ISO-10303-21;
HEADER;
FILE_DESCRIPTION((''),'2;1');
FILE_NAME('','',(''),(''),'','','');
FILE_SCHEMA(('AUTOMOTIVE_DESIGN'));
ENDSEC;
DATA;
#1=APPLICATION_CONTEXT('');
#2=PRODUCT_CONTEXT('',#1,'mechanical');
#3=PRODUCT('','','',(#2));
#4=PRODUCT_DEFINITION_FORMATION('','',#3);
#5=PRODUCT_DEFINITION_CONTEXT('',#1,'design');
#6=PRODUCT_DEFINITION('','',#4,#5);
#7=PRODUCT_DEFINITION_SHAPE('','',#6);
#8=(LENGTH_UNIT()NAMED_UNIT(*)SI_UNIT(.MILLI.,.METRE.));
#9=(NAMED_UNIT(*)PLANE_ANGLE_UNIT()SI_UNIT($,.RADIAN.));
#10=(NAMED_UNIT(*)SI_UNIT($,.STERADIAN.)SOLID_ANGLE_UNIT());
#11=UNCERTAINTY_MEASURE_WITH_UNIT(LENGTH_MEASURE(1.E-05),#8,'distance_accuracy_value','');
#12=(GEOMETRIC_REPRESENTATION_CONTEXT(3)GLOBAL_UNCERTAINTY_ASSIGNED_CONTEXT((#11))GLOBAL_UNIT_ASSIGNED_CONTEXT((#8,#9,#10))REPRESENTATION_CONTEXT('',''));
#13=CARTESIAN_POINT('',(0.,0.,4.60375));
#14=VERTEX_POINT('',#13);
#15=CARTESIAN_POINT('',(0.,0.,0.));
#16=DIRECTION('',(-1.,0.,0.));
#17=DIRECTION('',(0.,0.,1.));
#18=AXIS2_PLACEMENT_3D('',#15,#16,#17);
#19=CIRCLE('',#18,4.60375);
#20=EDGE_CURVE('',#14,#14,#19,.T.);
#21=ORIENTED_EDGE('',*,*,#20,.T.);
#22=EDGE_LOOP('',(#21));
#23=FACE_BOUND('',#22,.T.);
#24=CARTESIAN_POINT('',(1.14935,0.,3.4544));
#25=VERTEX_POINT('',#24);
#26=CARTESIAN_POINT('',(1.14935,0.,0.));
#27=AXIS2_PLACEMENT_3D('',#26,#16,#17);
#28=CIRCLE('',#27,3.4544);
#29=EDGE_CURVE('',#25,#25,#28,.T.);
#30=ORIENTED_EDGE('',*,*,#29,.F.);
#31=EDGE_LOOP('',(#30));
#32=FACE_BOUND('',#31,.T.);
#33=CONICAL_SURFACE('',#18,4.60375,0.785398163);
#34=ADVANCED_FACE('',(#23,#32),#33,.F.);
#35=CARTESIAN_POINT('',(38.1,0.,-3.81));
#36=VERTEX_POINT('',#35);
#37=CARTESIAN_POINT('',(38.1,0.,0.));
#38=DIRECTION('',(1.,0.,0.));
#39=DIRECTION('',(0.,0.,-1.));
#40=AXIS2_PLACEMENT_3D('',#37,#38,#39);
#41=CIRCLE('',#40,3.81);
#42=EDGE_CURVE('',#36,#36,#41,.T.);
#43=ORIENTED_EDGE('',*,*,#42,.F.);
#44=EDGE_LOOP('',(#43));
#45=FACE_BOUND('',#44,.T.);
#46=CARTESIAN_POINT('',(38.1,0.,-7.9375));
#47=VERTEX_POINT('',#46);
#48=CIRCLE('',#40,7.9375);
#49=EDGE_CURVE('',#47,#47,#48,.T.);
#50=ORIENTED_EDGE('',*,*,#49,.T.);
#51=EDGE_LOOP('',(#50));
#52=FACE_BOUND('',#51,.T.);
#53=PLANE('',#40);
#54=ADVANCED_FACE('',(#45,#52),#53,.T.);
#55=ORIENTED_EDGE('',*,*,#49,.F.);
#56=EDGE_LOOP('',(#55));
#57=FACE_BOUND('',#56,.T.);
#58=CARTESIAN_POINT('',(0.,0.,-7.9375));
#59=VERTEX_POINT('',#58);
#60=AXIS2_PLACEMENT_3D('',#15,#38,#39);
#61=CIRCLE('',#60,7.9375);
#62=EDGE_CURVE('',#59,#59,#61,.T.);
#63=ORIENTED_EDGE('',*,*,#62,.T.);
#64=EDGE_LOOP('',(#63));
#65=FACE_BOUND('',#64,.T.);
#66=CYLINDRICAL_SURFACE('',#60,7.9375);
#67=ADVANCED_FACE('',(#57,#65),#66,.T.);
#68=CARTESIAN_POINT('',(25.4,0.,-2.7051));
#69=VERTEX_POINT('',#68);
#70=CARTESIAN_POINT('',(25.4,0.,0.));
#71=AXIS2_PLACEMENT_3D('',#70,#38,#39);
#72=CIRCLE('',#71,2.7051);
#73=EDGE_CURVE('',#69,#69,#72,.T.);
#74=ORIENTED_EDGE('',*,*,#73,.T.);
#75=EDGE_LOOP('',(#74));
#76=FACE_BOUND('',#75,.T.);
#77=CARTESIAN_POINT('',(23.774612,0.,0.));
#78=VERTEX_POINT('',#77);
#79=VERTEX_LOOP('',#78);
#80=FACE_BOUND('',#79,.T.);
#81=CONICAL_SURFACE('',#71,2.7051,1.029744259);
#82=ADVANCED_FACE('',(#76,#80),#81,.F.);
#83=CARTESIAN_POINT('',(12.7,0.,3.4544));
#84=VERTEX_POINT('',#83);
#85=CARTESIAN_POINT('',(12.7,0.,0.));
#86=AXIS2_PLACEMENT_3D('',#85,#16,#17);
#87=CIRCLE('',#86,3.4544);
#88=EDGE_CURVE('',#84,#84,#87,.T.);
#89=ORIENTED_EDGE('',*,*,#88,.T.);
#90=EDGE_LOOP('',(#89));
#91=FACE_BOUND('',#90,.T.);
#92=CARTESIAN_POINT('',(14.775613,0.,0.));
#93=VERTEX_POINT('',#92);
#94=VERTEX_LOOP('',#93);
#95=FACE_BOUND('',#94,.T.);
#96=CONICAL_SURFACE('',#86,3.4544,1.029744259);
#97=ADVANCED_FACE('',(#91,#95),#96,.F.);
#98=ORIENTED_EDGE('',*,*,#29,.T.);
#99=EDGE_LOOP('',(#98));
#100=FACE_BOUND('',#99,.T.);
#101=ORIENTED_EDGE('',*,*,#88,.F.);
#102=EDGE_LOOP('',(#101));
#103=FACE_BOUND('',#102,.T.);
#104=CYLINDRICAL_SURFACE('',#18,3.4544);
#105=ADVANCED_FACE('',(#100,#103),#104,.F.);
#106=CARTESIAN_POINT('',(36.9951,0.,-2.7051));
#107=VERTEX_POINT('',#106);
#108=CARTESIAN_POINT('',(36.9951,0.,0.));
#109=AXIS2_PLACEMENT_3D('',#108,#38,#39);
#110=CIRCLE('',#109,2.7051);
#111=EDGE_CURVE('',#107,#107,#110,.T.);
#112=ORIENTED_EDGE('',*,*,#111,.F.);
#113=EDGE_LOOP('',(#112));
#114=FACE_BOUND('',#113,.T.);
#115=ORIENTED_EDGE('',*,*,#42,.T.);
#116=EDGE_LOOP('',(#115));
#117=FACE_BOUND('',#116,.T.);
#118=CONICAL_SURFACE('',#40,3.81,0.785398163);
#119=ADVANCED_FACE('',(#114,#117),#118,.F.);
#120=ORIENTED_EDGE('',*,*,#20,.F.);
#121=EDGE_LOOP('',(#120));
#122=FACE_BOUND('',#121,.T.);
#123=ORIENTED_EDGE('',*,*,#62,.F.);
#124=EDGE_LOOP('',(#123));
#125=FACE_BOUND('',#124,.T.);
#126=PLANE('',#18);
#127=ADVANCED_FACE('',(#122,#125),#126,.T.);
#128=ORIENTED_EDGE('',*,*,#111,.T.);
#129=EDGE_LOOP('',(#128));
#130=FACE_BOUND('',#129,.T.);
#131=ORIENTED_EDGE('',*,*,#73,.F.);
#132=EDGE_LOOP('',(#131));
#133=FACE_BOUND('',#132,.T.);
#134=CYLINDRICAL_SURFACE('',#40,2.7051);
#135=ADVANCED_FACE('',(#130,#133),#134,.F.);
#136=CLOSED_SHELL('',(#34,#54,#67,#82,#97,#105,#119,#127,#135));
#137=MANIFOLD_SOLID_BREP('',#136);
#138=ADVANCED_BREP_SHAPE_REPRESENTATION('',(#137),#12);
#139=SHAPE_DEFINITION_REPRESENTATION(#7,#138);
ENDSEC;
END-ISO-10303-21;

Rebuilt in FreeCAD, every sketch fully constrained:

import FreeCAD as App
import Part
import Sketcher

V = App.Vector
Q = App.Units.Quantity


def add_polygon(sketch, points):
    """Adds a closed chain of lines whose ends are joined by coincident constraints."""
    first, n = sketch.GeometryCount, len(points)
    for a, b in zip(points, points[1:] + points[:1]):
        sketch.addGeometry(Part.LineSegment(App.Vector(*a, 0), App.Vector(*b, 0)), False)
    for i in range(n):
        sketch.addConstraint(Sketcher.Constraint("Coincident", first + i, 2, first + (i + 1) % n, 1))

doc = App.newDocument("Part")
body = doc.addObject("PartDesign::Body", "Body")

sketch1 = body.newObject("Sketcher::SketchObject", "Sketch")
sketch1.AttachmentSupport = (doc.getObject("XY_Plane"), [""])
sketch1.MapMode = "FlatFace"
add_polygon(sketch1, [(0, 8), (0, 0), (38, 0), (38, 8)])
sketch1.addConstraint(Sketcher.Constraint("Vertical", 0))
sketch1.addConstraint(Sketcher.Constraint("Horizontal", 1))
sketch1.addConstraint(Sketcher.Constraint("Vertical", 2))
sketch1.addConstraint(Sketcher.Constraint("Horizontal", 3))
sketch1.addConstraint(Sketcher.Constraint("Coincident", 0, 2, -1, 1))
sketch1.addConstraint(Sketcher.Constraint("DistanceX", 1, 1, 1, 2, Q("1.5 in")))
sketch1.addConstraint(Sketcher.Constraint("DistanceY", 0, 2, 0, 1, Q("0.3125 in")))
revolution = body.newObject("PartDesign::Revolution", "Revolution")
revolution.Profile = sketch1
revolution.ReferenceAxis = (sketch1, ["H_Axis"])
revolution.Angle = 360

sketch2 = body.newObject("Sketcher::SketchObject", "Sketch001")
sketch2.AttachmentSupport = (doc.getObject("YZ_Plane"), [""])
sketch2.MapMode = "FlatFace"
sketch2.AttachmentOffset = App.Placement(V(0, 0, 1.5 * 25.4), App.Rotation())
sketch2.addGeometry(Part.Circle(V(0, 0, 0), V(0, 0, 1), 2.7), False)
sketch2.addConstraint(Sketcher.Constraint("Coincident", 0, 3, -1, 1))
sketch2.addConstraint(Sketcher.Constraint("Diameter", 0, Q("0.213 in")))
doc.recompute()
hole = body.newObject("PartDesign::Hole", "Hole")
hole.Profile = sketch2
hole.ThreadType = "None"
hole.Diameter = Q("0.213 in")
hole.DepthType = "Dimension"
hole.Depth = Q("0.5 in")
hole.DrillPoint = "Angled"
hole.DrillPointAngle = 118
hole.HoleCutType = "Countersink"
hole.HoleCutDiameter = Q("0.3 in")
hole.HoleCutCountersinkAngle = 90

sketch3 = body.newObject("Sketcher::SketchObject", "Sketch002")
sketch3.AttachmentSupport = (doc.getObject("YZ_Plane"), [""])
sketch3.MapMode = "FlatFace"
sketch3.addGeometry(Part.Circle(V(0, 0, 0), V(0, 0, 1), 3.5), False)
sketch3.addConstraint(Sketcher.Constraint("Coincident", 0, 3, -1, 1))
sketch3.addConstraint(Sketcher.Constraint("Diameter", 0, Q("0.272 in")))
doc.recompute()
hole2 = body.newObject("PartDesign::Hole", "Hole001")
hole2.Profile = sketch3
hole2.ThreadType = "None"
hole2.Diameter = Q("0.272 in")
hole2.DepthType = "Dimension"
hole2.Depth = Q("0.5 in")
hole2.DrillPoint = "Angled"
hole2.DrillPointAngle = 118
hole2.HoleCutType = "Countersink"
hole2.HoleCutDiameter = Q("0.3625 in")
hole2.HoleCutCountersinkAngle = 90
hole2.Reversed = True

doc.recompute()
